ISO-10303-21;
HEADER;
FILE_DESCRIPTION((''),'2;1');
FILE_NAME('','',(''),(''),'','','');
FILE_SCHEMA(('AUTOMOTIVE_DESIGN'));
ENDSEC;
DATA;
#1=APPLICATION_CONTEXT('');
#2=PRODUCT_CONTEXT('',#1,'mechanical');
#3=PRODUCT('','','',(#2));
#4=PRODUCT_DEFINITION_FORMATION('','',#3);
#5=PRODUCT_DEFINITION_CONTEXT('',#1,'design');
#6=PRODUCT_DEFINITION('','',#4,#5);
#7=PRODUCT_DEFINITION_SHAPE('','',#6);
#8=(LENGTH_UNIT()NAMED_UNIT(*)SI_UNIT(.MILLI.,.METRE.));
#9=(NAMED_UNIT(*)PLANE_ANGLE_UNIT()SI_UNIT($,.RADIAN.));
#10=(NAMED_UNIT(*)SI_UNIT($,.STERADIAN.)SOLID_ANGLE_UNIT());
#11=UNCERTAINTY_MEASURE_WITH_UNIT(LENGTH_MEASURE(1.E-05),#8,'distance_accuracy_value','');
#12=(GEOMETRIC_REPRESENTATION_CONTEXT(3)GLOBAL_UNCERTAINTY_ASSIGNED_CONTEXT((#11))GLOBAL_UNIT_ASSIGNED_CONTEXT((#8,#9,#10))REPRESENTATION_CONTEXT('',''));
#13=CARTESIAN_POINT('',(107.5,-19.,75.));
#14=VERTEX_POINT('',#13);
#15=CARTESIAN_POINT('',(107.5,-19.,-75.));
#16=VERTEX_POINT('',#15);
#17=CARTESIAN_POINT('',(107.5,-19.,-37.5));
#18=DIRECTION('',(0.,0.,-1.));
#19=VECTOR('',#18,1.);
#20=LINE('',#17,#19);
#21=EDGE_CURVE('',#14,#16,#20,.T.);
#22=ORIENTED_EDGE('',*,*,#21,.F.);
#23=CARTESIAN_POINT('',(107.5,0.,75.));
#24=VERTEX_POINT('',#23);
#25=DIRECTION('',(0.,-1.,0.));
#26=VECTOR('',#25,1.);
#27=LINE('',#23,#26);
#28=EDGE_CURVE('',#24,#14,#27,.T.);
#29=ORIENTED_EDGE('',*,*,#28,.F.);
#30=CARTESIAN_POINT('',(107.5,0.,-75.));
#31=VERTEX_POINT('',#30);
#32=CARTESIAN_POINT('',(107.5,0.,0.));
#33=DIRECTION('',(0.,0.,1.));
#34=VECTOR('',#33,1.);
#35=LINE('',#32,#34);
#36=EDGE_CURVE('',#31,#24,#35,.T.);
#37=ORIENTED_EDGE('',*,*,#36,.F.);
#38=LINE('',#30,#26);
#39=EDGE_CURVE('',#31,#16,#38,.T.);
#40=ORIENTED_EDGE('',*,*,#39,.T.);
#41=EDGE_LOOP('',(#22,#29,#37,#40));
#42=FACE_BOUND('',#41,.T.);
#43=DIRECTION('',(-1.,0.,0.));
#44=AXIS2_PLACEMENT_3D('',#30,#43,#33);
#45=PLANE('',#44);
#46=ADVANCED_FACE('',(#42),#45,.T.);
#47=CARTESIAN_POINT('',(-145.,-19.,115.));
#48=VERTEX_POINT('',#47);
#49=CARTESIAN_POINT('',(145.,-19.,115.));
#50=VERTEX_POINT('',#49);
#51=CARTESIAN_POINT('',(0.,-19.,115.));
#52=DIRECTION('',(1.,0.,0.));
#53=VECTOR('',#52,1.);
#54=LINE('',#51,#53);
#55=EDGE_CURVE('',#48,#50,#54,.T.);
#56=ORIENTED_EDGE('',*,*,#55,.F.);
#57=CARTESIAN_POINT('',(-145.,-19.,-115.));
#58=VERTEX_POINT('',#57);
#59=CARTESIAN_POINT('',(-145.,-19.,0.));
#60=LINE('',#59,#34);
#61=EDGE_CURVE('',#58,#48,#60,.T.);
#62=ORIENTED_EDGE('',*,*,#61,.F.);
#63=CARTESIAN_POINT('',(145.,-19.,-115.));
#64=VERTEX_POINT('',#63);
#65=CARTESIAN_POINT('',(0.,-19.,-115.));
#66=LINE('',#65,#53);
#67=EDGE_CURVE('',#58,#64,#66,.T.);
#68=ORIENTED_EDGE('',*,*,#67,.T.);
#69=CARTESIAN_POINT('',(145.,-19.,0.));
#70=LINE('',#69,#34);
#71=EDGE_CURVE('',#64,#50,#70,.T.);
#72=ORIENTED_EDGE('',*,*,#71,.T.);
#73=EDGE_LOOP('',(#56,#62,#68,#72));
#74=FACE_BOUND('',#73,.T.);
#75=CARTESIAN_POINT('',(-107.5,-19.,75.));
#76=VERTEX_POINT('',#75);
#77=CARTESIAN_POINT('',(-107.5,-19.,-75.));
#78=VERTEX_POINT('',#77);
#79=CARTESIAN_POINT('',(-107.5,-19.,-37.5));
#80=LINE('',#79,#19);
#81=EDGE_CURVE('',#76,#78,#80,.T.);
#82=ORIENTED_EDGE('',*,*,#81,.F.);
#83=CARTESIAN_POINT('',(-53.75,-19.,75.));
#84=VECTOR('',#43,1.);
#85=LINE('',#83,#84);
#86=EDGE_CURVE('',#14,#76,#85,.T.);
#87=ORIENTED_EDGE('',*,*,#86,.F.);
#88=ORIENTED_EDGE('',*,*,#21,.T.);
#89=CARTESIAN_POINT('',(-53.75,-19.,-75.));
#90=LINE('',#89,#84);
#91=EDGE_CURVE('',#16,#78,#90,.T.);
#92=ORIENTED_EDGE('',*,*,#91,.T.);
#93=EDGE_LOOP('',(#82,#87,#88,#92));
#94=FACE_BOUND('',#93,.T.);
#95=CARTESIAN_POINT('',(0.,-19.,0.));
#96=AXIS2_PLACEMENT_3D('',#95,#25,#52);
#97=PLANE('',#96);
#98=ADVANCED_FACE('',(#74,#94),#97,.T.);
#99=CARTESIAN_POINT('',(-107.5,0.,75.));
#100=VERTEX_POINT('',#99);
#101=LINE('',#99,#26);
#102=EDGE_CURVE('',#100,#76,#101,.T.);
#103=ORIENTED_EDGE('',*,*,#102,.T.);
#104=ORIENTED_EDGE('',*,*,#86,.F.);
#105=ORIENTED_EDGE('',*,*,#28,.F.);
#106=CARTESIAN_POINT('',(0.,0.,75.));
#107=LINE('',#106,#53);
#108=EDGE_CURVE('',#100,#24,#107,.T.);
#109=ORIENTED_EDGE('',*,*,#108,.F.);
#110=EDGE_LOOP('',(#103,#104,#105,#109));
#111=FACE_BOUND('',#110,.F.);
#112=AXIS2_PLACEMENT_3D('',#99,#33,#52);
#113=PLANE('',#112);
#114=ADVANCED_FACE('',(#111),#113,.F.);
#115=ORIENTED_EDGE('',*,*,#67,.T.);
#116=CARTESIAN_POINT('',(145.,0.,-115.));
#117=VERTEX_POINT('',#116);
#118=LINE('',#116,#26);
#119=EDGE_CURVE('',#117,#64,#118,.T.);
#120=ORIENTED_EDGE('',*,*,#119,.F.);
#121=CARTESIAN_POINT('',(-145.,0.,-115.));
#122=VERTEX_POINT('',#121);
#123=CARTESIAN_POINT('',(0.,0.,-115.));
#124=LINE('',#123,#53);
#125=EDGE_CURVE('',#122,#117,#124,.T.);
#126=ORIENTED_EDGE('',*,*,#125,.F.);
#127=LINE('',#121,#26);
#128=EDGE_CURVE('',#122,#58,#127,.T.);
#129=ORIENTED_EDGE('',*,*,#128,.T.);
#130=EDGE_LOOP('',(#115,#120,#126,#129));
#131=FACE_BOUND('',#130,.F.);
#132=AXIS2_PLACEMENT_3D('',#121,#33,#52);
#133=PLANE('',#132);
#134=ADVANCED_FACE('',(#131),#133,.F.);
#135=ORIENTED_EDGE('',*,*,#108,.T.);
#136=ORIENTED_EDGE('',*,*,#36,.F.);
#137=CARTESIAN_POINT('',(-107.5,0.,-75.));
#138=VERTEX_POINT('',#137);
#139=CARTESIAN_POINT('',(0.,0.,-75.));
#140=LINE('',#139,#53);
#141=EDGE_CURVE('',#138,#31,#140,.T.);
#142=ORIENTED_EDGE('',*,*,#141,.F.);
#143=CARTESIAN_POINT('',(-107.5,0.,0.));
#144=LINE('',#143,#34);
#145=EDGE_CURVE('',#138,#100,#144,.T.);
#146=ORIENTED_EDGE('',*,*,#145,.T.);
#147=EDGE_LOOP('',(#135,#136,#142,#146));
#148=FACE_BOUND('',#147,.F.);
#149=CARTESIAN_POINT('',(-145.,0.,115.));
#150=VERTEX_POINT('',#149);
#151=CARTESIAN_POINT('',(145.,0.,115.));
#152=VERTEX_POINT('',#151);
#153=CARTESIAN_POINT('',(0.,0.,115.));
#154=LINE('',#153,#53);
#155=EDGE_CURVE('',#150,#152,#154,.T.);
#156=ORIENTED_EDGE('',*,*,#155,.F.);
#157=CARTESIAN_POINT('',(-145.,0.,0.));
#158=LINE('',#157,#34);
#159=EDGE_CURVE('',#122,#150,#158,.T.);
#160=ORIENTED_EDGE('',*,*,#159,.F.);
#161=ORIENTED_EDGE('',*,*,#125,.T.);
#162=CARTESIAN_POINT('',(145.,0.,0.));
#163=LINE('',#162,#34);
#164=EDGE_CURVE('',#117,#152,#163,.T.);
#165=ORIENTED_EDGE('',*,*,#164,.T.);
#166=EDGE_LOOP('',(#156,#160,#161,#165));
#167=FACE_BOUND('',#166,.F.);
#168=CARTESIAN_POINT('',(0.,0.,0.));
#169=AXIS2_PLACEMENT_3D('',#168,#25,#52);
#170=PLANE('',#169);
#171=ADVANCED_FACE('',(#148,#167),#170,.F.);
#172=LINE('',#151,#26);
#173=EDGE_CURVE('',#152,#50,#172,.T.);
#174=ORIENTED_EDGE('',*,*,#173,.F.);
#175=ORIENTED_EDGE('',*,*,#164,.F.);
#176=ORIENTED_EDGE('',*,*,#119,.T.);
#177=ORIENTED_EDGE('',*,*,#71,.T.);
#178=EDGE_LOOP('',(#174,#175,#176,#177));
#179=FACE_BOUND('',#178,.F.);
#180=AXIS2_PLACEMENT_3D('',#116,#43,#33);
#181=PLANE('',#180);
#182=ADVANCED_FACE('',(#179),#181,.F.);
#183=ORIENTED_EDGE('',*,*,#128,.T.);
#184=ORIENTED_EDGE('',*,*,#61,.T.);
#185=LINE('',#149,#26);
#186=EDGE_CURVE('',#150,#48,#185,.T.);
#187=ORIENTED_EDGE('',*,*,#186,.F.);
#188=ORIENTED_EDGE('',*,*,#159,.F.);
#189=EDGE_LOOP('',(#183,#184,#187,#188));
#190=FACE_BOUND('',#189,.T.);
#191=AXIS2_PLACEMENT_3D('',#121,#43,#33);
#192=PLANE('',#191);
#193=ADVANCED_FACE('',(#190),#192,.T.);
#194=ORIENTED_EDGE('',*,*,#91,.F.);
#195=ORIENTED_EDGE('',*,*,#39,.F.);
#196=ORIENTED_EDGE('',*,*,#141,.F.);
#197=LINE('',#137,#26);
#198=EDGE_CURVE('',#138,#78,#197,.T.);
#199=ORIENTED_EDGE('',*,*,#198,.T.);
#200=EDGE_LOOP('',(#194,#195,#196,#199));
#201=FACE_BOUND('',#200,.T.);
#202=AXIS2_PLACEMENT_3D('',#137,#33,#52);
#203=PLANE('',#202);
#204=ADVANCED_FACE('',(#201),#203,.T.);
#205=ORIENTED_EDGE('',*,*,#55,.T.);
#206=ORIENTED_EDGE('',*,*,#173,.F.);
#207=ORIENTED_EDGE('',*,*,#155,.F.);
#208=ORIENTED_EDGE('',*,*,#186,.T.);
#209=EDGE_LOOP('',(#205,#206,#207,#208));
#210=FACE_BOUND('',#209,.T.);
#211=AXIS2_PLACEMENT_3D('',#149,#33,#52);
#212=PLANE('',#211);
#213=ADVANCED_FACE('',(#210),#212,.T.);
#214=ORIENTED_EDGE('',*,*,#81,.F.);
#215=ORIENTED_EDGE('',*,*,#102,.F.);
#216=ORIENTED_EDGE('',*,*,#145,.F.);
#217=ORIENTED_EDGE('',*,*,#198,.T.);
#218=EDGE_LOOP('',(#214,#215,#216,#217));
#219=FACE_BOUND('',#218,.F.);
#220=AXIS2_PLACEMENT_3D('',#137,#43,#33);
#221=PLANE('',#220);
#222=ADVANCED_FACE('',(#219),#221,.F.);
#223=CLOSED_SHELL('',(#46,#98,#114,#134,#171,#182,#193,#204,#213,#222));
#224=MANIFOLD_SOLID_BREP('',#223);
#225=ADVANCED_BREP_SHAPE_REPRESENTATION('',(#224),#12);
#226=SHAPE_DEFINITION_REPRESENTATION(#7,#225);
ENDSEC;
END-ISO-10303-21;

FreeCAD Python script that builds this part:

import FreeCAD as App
import Part
import Sketcher

doc = App.newDocument("Part")
body = doc.addObject("PartDesign::Body", "Body")

sketch1 = doc.addObject("Sketcher::SketchObject", "Sketch")
body.addObject(sketch1)
sketch1.AttachmentSupport = (doc.XZ_Plane, [""])
sketch1.MapMode = "FlatFace"
sketch1.addGeometry(Part.LineSegment(App.Vector(-145, 115, 0), App.Vector(-145, -115, 0)), False)
sketch1.addGeometry(Part.LineSegment(App.Vector(-145, -115, 0), App.Vector(145, -115, 0)), False)
sketch1.addGeometry(Part.LineSegment(App.Vector(145, -115, 0), App.Vector(145, 115, 0)), False)
sketch1.addGeometry(Part.LineSegment(App.Vector(145, 115, 0), App.Vector(-145, 115, 0)), False)
sketch1.addConstraint(Sketcher.Constraint("Coincident", 0, 2, 1, 1))
sketch1.addConstraint(Sketcher.Constraint("Coincident", 1, 2, 2, 1))
sketch1.addConstraint(Sketcher.Constraint("Coincident", 2, 2, 3, 1))
sketch1.addConstraint(Sketcher.Constraint("Coincident", 3, 2, 0, 1))
sketch1.addConstraint(Sketcher.Constraint("Vertical", 0))
sketch1.addConstraint(Sketcher.Constraint("Horizontal", 1))
sketch1.addConstraint(Sketcher.Constraint("Vertical", 2))
sketch1.addConstraint(Sketcher.Constraint("Horizontal", 3))
sketch1.addConstraint(Sketcher.Constraint("Symmetric", 0, 2, 2, 2, -1, 1))
sketch1.addConstraint(Sketcher.Constraint("DistanceX", 1, 1, 1, 2, 290.0))
sketch1.addConstraint(Sketcher.Constraint("DistanceY", 0, 2, 0, 1, 230.0))
pad1 = doc.addObject("PartDesign::Pad", "Pad")
body.addObject(pad1)
pad1.Profile = sketch1
pad1.Length = 19

sketch2 = doc.addObject("Sketcher::SketchObject", "Sketch001")
body.addObject(sketch2)
sketch2.AttachmentSupport = (doc.XZ_Plane, [""])
sketch2.MapMode = "FlatFace"
sketch2.addGeometry(Part.LineSegment(App.Vector(-108, 75, 0), App.Vector(-108, -75, 0)), False)
sketch2.addGeometry(Part.LineSegment(App.Vector(-108, -75, 0), App.Vector(108, -75, 0)), False)
sketch2.addGeometry(Part.LineSegment(App.Vector(108, -75, 0), App.Vector(108, 75, 0)), False)
sketch2.addGeometry(Part.LineSegment(App.Vector(108, 75, 0), App.Vector(-108, 75, 0)), False)
sketch2.addConstraint(Sketcher.Constraint("Coincident", 0, 2, 1, 1))
sketch2.addConstraint(Sketcher.Constraint("Coincident", 1, 2, 2, 1))
sketch2.addConstraint(Sketcher.Constraint("Coincident", 2, 2, 3, 1))
sketch2.addConstraint(Sketcher.Constraint("Coincident", 3, 2, 0, 1))
sketch2.addConstraint(Sketcher.Constraint("Vertical", 0))
sketch2.addConstraint(Sketcher.Constraint("Horizontal", 1))
sketch2.addConstraint(Sketcher.Constraint("Vertical", 2))
sketch2.addConstraint(Sketcher.Constraint("Horizontal", 3))
sketch2.addConstraint(Sketcher.Constraint("Symmetric", 0, 2, 2, 2, -1, 1))
sketch2.addConstraint(Sketcher.Constraint("DistanceX", 1, 1, 1, 2, 215.0))
sketch2.addConstraint(Sketcher.Constraint("DistanceY", 0, 2, 0, 1, 150.0))
pocket1 = doc.addObject("PartDesign::Pocket", "Pocket")
body.addObject(pocket1)
pocket1.Profile = sketch2
pocket1.Length = 25
pocket1.Reversed = True

doc.recompute()
